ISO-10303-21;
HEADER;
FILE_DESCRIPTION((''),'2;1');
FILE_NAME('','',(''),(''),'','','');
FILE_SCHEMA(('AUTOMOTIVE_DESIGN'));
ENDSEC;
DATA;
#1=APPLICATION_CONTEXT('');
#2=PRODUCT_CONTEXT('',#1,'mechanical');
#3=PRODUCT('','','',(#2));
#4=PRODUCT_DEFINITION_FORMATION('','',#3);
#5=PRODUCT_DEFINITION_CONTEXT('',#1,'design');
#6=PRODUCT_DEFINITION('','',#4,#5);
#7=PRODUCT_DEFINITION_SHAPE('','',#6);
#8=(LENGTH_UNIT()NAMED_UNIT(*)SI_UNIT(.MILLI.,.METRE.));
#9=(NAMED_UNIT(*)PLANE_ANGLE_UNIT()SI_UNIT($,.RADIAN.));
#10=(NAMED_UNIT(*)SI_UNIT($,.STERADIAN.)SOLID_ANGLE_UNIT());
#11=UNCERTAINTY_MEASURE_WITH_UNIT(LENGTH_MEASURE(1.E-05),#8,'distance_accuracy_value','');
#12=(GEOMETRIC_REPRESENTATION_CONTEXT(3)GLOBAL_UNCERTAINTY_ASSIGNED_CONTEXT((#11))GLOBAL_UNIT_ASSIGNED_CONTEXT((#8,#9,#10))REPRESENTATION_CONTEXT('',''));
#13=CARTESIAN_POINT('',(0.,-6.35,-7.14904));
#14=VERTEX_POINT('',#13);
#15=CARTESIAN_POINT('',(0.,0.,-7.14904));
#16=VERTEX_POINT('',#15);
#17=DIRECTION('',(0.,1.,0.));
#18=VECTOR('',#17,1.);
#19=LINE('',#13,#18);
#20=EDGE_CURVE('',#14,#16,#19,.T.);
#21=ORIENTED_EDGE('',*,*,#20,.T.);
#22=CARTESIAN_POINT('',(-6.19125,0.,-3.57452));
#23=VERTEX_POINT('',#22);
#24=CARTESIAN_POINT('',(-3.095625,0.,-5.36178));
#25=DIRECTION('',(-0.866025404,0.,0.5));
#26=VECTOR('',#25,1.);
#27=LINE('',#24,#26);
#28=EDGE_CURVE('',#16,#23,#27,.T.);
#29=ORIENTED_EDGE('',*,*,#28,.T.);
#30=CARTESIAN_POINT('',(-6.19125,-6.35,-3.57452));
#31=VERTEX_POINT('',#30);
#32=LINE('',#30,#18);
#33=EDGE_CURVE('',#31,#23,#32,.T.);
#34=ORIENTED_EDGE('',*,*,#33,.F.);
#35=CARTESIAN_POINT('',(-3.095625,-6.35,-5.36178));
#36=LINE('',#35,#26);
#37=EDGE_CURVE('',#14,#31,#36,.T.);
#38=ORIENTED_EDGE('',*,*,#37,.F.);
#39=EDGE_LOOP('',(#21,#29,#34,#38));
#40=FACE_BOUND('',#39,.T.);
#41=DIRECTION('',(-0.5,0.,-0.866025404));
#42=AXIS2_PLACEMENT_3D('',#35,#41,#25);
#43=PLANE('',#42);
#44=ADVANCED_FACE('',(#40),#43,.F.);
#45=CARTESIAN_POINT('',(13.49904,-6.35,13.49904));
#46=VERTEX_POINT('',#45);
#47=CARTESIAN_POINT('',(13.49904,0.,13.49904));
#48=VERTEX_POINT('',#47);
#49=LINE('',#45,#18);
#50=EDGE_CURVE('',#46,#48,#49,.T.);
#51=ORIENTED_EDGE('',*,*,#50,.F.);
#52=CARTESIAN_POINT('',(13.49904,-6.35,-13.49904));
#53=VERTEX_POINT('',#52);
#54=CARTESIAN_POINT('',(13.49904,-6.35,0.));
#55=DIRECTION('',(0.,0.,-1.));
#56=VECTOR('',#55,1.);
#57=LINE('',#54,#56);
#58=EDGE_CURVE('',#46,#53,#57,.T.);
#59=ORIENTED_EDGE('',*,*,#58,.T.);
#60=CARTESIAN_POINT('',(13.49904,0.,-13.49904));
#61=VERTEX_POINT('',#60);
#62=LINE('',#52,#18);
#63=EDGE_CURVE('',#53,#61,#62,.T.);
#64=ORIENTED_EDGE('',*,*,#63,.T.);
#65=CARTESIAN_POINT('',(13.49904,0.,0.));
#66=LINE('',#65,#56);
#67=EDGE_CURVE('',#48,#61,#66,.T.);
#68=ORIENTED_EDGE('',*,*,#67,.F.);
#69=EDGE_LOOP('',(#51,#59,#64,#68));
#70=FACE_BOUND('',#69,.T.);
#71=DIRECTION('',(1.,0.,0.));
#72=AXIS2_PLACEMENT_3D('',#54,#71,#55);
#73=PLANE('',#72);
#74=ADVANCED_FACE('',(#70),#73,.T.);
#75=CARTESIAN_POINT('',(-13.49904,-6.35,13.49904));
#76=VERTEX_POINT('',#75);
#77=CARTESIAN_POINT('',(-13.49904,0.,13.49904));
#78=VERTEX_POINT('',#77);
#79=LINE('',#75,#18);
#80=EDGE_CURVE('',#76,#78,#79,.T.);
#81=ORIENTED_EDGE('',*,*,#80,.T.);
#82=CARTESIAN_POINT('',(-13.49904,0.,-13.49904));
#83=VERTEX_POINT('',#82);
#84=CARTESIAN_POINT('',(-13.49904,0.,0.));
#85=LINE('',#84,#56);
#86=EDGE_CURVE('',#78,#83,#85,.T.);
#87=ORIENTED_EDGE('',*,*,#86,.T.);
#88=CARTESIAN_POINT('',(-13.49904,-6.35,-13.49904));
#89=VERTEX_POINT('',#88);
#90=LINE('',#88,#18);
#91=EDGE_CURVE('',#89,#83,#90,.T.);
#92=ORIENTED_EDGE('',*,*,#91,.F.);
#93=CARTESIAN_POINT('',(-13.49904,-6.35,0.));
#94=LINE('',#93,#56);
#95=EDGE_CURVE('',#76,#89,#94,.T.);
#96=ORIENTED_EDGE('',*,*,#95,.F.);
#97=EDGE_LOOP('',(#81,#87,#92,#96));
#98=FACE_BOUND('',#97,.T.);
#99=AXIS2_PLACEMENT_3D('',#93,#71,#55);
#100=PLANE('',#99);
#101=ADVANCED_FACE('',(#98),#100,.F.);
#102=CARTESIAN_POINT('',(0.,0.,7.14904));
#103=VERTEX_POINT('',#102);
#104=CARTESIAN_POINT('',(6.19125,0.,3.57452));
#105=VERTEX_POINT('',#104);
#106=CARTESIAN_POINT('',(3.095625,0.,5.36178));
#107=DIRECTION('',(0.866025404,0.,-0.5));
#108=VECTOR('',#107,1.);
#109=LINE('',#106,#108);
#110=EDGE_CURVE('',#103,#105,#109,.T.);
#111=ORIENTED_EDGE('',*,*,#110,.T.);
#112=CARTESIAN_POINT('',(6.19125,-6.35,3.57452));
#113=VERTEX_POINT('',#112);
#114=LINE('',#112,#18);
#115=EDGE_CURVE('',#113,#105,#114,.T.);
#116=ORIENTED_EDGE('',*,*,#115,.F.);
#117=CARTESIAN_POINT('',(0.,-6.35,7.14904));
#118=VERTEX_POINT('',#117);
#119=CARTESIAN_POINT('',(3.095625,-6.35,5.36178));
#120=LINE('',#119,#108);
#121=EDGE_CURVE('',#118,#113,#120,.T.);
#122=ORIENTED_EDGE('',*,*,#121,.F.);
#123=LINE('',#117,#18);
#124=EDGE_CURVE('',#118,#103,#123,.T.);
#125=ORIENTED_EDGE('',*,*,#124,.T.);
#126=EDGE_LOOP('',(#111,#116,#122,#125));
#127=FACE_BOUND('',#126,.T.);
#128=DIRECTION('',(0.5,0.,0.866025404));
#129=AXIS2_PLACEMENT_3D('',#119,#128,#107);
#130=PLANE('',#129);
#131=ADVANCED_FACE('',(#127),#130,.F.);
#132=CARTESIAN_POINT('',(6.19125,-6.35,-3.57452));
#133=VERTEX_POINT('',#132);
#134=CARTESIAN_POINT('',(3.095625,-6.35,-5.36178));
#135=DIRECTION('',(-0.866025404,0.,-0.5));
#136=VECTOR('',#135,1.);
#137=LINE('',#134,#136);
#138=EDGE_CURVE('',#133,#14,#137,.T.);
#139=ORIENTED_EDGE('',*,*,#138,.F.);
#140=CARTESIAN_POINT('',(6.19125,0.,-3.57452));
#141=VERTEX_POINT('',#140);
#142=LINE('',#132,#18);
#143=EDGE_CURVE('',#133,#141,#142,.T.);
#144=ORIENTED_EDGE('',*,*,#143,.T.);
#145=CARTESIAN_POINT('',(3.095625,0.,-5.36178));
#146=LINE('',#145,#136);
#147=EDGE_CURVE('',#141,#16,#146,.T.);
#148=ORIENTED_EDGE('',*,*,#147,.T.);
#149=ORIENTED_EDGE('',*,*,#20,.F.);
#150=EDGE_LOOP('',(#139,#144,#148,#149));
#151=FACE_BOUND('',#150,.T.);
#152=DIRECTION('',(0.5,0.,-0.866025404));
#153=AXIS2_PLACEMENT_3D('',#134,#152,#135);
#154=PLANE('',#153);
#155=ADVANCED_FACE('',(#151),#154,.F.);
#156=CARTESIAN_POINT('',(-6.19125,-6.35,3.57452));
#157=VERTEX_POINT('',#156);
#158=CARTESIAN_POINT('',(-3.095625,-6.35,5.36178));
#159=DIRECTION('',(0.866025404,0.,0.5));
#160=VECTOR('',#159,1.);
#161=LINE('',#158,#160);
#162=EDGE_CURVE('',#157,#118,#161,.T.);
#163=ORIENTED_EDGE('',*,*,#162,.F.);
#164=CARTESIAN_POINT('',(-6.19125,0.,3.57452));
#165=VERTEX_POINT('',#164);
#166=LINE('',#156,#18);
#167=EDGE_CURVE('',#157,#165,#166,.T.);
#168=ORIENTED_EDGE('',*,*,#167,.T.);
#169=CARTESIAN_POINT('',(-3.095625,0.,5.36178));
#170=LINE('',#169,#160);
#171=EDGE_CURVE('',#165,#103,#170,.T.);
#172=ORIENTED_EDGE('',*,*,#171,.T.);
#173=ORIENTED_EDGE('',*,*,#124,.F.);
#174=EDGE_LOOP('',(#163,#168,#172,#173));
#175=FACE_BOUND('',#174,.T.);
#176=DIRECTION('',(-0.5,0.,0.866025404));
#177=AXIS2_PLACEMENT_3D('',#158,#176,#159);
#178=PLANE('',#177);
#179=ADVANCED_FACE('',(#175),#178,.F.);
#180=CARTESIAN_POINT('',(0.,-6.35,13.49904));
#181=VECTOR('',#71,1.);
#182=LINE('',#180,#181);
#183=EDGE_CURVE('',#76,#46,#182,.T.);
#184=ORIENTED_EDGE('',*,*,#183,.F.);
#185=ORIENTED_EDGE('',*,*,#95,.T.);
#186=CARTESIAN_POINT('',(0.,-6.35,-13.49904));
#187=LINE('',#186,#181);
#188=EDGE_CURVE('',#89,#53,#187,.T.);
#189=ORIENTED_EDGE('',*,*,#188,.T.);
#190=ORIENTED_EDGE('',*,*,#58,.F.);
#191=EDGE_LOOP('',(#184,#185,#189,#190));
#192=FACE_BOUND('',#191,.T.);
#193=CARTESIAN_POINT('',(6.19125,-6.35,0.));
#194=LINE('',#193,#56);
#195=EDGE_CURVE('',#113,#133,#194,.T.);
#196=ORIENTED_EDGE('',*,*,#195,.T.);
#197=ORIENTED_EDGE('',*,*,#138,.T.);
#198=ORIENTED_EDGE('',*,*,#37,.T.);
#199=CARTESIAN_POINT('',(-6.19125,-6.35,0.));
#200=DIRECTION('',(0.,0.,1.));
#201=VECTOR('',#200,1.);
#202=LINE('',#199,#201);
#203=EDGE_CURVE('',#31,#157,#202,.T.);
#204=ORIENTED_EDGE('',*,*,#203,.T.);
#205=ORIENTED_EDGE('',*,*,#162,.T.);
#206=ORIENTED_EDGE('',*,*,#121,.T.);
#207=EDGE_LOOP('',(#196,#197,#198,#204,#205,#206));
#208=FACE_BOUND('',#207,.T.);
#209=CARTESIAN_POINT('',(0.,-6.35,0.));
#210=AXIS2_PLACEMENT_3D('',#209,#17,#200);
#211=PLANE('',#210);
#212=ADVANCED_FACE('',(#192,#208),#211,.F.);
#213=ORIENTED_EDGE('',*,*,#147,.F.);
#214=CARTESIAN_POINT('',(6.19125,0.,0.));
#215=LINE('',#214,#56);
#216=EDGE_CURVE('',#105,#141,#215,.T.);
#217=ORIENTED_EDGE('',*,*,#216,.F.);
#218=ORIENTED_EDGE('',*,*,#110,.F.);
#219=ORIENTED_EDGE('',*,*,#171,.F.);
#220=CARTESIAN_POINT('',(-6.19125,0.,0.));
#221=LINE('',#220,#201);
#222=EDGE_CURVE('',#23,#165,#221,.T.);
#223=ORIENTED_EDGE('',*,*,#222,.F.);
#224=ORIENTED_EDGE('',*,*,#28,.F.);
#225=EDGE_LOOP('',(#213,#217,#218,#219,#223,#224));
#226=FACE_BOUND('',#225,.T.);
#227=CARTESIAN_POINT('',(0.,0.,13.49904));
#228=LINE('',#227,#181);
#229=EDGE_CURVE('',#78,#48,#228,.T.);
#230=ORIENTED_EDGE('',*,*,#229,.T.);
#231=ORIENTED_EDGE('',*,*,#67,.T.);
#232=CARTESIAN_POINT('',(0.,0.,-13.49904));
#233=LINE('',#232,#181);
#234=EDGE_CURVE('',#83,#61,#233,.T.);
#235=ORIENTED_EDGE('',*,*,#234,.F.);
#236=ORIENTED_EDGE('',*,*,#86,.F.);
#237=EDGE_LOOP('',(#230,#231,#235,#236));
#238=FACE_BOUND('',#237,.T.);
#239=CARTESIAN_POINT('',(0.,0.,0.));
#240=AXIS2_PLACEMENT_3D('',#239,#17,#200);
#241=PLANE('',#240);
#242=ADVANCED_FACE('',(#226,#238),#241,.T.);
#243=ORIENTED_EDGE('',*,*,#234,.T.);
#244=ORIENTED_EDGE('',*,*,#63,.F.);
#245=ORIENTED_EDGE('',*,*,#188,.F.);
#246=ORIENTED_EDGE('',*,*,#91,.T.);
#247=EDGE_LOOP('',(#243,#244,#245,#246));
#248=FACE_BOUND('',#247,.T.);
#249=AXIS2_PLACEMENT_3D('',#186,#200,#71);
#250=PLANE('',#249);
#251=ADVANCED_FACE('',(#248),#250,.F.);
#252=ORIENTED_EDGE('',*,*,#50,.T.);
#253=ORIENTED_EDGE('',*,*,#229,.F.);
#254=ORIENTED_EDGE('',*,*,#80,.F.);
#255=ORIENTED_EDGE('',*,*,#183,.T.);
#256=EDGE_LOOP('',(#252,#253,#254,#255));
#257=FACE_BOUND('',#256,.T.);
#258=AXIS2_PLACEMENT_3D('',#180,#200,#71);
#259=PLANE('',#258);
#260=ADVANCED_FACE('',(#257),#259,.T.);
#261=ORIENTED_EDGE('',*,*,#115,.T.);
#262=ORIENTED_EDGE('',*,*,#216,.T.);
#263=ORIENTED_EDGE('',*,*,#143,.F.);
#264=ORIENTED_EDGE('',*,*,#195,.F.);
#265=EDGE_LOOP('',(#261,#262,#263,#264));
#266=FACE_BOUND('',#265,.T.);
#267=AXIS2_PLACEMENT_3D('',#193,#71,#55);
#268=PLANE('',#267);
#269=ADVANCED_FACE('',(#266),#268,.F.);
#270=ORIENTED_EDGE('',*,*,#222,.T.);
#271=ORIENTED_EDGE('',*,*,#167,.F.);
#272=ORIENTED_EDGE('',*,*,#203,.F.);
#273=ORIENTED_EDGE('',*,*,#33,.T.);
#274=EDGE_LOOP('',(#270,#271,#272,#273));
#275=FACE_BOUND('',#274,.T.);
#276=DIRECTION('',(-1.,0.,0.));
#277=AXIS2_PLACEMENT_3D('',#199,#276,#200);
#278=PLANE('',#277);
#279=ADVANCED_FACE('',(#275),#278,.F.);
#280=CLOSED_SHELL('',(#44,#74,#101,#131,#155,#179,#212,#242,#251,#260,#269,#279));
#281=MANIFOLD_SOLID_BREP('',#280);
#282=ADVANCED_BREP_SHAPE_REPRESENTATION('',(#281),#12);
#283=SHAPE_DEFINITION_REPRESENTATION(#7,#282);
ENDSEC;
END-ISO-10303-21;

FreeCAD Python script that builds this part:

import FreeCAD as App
import Part
import Sketcher
Q = App.Units.Quantity


def add_polygon(sketch, points):
    """Adds a closed chain of lines whose ends are joined by coincident constraints."""
    first, n = sketch.GeometryCount, len(points)
    for a, b in zip(points, points[1:] + points[:1]):
        sketch.addGeometry(Part.LineSegment(App.Vector(*a, 0), App.Vector(*b, 0)), False)
    for i in range(n):
        sketch.addConstraint(Sketcher.Constraint("Coincident", first + i, 2, first + (i + 1) % n, 1))

doc = App.newDocument("Part")
params = doc.addObject("Spreadsheet::Sheet", "Params")
for row, (alias, value) in enumerate([
    ("pad1_length", "0.25 in"),
], start=1):
    params.set(f"A{row}", alias)
    params.set(f"B{row}", "=" + value)
    params.setAlias(f"B{row}", alias)

body = doc.addObject("PartDesign::Body", "Body")

sketch1 = body.newObject("Sketcher::SketchObject", "Sketch")
sketch1.AttachmentSupport = (doc.getObject("XZ_Plane"), [""])
sketch1.MapMode = "FlatFace"
add_polygon(sketch1, [(-13, -13), (-13, 13), (13, 13), (13, -13)])
add_polygon(sketch1, [(0, -7), (6, -4), (6, 4), (0, 7), (-6, 4), (-6, -4)])
sketch1.addConstraint([
    Sketcher.Constraint("Vertical", 0),
    Sketcher.Constraint("Horizontal", 1),
    Sketcher.Constraint("Vertical", 2),
    Sketcher.Constraint("Horizontal", 3),
    Sketcher.Constraint("Vertical", 5),
    Sketcher.Constraint("Vertical", 8),
    Sketcher.Constraint("Symmetric", 0, 2, 2, 2, -1, 1),
    Sketcher.Constraint("Symmetric", 4, 2, 7, 2, -1, 1),
    Sketcher.Constraint("Symmetric", 6, 2, 9, 2, -1, 1),
    Sketcher.Constraint("PointOnObject", 6, 2, -2),
    Sketcher.Constraint("Parallel", 6, 9),
    Sketcher.Constraint("Horizontal", 5, 2, 7, 2),
    Sketcher.Constraint("Equal", 3, 0),
    Sketcher.Constraint("Angle", 4, Q("30 deg")),
    Sketcher.Constraint("DistanceY", 6, 2, 0, 2, Q("0.25 in")),
    Sketcher.Constraint("DistanceX", 7, 2, 5, 2, Q("0.4875 in")),
    Sketcher.Constraint("DistanceX", 1, 1, 1, 2, 26.998079),
])
pad1 = body.newObject("PartDesign::Pad", "Pad")
pad1.Profile = sketch1
pad1.setExpression("Length", "Params.pad1_length")

doc.recompute()
